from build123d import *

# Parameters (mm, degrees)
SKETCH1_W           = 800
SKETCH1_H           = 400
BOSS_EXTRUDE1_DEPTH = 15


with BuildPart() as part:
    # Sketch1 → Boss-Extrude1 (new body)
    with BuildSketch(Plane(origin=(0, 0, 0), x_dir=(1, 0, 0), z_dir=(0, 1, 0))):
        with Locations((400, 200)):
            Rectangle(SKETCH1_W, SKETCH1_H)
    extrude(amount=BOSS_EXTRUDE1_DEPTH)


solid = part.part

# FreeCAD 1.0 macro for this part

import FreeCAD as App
import Part
import Sketcher
Q = App.Units.Quantity


def add_polygon(sketch, points):
    """Adds a closed chain of lines whose ends are joined by coincident constraints."""
    first, n = sketch.GeometryCount, len(points)
    for a, b in zip(points, points[1:] + points[:1]):
        sketch.addGeometry(Part.LineSegment(App.Vector(*a, 0), App.Vector(*b, 0)), False)
    for i in range(n):
        sketch.addConstraint(Sketcher.Constraint("Coincident", first + i, 2, first + (i + 1) % n, 1))

doc = App.newDocument("Part")
params = doc.addObject("Spreadsheet::Sheet", "Params")
for row, (alias, value) in enumerate([
    ("sketch1_width", "800 mm"),
    ("sketch1_height", "400 mm"),
    ("pad1_length", "15 mm"),
], start=1):
    params.set(f"A{row}", alias)
    params.set(f"B{row}", "=" + value)
    params.setAlias(f"B{row}", alias)

body = doc.addObject("PartDesign::Body", "Body")

sketch1 = body.newObject("Sketcher::SketchObject", "Sketch")
sketch1.AttachmentSupport = (doc.getObject("XZ_Plane"), [""])
sketch1.MapMode = "FlatFace"
add_polygon(sketch1, [(0, -400), (0, 0), (800, 0), (800, -400)])
sketch1.addConstraint(Sketcher.Constraint("Vertical", 0))
sketch1.addConstraint(Sketcher.Constraint("Horizontal", 1))
sketch1.addConstraint(Sketcher.Constraint("Vertical", 2))
sketch1.addConstraint(Sketcher.Constraint("Horizontal", 3))
sketch1.addConstraint(Sketcher.Constraint("Coincident", 0, 2, -1, 1))
sketch1.addConstraint(Sketcher.Constraint("DistanceX", 1, 1, 1, 2, Q("800 mm")))
sketch1.addConstraint(Sketcher.Constraint("DistanceY", 0, 1, 0, 2, Q("400 mm")))
sketch1.setExpression("Constraints[9]", "Params.sketch1_width")
sketch1.setExpression("Constraints[10]", "Params.sketch1_height")
pad1 = body.newObject("PartDesign::Pad", "Pad")
pad1.Profile = sketch1
pad1.setExpression("Length", "Params.pad1_length")
pad1.Reversed = True

doc.recompute()
